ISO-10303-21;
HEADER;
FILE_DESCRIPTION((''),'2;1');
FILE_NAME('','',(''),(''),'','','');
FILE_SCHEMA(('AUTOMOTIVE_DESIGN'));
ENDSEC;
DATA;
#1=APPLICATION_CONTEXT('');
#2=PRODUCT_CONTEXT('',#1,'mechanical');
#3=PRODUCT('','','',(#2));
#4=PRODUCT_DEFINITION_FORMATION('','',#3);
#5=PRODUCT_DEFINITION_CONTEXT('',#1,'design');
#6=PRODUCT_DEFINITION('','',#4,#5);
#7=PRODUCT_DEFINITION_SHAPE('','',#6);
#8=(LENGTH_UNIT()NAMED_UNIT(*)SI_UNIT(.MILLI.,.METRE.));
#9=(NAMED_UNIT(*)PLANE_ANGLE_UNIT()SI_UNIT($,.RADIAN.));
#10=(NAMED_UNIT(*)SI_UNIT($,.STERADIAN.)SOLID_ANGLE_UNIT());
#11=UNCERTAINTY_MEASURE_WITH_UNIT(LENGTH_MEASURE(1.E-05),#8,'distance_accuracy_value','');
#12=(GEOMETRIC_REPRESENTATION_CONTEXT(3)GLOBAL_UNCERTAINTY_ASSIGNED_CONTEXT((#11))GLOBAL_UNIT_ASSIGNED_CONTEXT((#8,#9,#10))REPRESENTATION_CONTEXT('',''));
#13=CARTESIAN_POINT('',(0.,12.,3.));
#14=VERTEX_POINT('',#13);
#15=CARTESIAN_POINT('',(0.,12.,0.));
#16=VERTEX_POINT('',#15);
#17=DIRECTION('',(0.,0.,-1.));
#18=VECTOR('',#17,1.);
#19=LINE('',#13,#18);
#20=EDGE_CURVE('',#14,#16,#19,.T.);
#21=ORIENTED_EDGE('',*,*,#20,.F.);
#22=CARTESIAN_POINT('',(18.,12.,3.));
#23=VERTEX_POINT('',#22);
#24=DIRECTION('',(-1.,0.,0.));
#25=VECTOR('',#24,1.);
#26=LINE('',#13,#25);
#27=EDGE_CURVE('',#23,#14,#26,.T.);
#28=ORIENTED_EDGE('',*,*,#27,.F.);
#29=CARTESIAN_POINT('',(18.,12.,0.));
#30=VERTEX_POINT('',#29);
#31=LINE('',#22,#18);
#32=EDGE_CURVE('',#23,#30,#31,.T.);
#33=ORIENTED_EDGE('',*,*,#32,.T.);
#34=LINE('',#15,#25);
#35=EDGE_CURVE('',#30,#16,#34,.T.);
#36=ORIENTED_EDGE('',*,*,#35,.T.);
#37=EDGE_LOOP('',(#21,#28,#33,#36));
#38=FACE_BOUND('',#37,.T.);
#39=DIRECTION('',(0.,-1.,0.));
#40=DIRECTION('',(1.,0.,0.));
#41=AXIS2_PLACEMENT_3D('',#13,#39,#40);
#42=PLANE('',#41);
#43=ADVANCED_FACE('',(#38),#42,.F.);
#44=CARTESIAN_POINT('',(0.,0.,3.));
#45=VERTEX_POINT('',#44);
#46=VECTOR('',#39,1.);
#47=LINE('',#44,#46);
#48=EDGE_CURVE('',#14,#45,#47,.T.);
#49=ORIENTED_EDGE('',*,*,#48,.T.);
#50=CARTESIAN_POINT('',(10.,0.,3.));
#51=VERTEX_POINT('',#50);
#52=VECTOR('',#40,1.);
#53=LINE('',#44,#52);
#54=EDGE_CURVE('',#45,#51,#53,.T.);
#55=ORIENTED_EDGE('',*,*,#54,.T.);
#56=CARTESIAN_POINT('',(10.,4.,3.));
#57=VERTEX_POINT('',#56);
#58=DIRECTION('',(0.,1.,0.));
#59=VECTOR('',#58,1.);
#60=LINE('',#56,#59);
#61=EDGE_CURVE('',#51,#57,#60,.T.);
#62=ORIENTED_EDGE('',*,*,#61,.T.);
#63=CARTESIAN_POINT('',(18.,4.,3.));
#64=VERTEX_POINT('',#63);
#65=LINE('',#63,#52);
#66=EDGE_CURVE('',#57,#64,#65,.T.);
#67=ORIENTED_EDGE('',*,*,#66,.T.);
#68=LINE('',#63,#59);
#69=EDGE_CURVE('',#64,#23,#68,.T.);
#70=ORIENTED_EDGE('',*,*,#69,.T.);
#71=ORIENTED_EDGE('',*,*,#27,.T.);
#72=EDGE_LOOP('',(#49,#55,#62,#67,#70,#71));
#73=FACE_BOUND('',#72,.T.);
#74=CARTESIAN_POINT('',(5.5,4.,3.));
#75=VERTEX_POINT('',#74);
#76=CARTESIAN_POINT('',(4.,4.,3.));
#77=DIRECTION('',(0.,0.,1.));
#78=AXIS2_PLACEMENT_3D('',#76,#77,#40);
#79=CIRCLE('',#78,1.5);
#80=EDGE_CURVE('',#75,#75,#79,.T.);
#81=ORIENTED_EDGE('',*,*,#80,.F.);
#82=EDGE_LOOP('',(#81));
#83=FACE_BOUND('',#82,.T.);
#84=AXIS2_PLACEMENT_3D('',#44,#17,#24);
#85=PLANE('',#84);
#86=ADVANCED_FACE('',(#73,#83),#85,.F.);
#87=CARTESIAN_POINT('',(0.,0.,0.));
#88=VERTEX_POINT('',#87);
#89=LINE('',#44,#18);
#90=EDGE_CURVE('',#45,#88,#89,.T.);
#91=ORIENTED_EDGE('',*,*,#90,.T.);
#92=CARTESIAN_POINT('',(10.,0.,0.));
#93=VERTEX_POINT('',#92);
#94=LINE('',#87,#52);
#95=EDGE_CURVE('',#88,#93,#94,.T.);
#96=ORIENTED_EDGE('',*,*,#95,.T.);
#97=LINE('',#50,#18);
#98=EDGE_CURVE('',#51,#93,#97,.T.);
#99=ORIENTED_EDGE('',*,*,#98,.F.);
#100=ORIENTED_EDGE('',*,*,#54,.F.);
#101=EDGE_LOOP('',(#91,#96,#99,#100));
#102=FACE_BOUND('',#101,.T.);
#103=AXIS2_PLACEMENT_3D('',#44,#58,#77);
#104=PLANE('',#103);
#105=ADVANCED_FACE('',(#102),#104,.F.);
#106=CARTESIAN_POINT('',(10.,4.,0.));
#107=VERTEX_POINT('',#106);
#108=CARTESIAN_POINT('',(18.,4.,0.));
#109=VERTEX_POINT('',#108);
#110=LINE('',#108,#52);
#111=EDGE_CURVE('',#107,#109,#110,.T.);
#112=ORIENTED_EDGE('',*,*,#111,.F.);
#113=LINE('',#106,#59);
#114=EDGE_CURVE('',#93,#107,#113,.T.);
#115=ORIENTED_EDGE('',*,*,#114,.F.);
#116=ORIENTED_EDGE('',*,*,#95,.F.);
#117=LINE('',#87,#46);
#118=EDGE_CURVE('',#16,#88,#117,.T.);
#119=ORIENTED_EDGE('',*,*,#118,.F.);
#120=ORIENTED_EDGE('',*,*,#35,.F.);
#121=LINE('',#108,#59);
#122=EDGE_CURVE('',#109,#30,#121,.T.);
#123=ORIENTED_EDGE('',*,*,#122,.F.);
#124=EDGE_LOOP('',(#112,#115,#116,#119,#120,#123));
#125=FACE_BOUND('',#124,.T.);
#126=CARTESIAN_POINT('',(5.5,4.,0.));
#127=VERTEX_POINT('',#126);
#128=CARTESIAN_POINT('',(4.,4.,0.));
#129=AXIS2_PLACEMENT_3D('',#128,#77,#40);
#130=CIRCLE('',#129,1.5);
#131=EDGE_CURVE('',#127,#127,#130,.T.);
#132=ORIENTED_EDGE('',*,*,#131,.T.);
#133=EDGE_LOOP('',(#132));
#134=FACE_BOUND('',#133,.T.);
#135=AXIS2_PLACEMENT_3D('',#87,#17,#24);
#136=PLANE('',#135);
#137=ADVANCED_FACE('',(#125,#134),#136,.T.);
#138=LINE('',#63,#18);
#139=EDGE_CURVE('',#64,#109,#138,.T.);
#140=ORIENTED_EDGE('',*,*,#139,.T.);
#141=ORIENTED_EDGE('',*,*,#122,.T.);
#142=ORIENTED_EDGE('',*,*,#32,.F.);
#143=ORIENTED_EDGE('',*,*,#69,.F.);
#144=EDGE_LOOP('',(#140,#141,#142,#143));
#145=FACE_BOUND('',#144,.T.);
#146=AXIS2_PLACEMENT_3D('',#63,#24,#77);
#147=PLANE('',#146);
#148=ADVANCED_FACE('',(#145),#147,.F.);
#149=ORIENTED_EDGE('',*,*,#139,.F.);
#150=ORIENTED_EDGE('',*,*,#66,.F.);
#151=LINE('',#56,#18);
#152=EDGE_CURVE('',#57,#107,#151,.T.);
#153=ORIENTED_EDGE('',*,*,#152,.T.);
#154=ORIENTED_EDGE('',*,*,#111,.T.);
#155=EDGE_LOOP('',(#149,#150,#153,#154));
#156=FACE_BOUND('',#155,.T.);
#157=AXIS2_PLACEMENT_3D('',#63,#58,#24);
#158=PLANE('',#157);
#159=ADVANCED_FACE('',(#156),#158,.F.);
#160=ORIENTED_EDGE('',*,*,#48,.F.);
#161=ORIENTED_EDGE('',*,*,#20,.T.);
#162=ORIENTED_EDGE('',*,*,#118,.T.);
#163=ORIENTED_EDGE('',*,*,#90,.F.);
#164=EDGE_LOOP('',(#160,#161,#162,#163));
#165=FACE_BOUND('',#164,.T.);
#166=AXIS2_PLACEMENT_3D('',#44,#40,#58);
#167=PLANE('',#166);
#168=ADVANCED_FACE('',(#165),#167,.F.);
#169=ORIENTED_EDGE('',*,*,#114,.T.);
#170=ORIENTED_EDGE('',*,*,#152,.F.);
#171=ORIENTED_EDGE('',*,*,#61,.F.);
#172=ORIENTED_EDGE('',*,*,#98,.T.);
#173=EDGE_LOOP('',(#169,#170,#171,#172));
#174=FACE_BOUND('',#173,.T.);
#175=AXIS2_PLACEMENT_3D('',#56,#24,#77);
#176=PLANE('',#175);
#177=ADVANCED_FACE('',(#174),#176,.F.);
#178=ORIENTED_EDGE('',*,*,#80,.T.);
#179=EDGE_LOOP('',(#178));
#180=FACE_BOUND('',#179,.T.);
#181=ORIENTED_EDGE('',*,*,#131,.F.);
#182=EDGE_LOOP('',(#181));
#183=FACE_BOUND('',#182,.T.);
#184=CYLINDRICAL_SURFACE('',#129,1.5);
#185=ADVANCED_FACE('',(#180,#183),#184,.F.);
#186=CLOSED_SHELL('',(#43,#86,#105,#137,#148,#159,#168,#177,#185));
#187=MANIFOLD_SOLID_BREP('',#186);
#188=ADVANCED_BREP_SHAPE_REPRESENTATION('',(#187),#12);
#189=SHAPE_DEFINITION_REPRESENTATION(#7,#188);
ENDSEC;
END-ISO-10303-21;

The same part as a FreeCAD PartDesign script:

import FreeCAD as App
import Part
import Sketcher
from FreeCAD import Vector
Q = App.Units.Quantity


def add_polygon(sketch, points):
    """Adds a closed chain of lines whose ends are joined by coincident constraints."""
    first, n = sketch.GeometryCount, len(points)
    for a, b in zip(points, points[1:] + points[:1]):
        sketch.addGeometry(Part.LineSegment(App.Vector(*a, 0), App.Vector(*b, 0)), False)
    for i in range(n):
        sketch.addConstraint(Sketcher.Constraint("Coincident", first + i, 2, first + (i + 1) % n, 1))

doc = App.newDocument("Part")
body = doc.addObject("PartDesign::Body", "Body")

# Sketch on XY plane
sketch1 = doc.addObject("Sketcher::SketchObject", "Sketch")
body.addObject(sketch1)
sketch1.AttachmentSupport = (doc.XY_Plane, [""])
sketch1.MapMode = "FlatFace"
add_polygon(sketch1, [(0, 0), (10, 0), (10, 4), (18, 4), (18, 12), (0, 12)])  # lines 0-5
sketch1.addConstraint(Sketcher.Constraint("Horizontal", 0))
sketch1.addConstraint(Sketcher.Constraint("Vertical", 1))
sketch1.addConstraint(Sketcher.Constraint("Horizontal", 2))
sketch1.addConstraint(Sketcher.Constraint("Vertical", 3))
sketch1.addConstraint(Sketcher.Constraint("Horizontal", 4))
sketch1.addConstraint(Sketcher.Constraint("Vertical", 5))
sketch1.addConstraint(Sketcher.Constraint("Coincident", 5, 2, -1, 1))
sketch1.addConstraint(Sketcher.Constraint("Equal", 2, 3))
sketch1.addConstraint(Sketcher.Constraint("DistanceX", 0, 1, 0, 2, Q("10 mm")))
sketch1.addConstraint(Sketcher.Constraint("DistanceX", 2, 1, 2, 2, Q("8 mm")))
sketch1.addConstraint(Sketcher.Constraint("DistanceY", 1, 1, 1, 2, Q("4 mm")))
pad1 = doc.addObject("PartDesign::Pad", "Pad")
body.addObject(pad1)
pad1.Profile = sketch1
pad1.Length = 3

# Sketch on XY plane
sketch2 = doc.addObject("Sketcher::SketchObject", "Sketch001")
body.addObject(sketch2)
sketch2.AttachmentSupport = (doc.XY_Plane, [""])
sketch2.MapMode = "FlatFace"
sketch2.AttachmentOffset = App.Placement(Vector(0, 0, 3), App.Rotation())
sketch2.addGeometry(Part.Circle(Vector(4, 4, 0), Vector(0, 0, 1), 1.5), False)
sketch2.addConstraint(Sketcher.Constraint("Diameter", 0, Q("3 mm")))
sketch2.addConstraint(Sketcher.Constraint("DistanceX", -1, 1, 0, 3, Q("4 mm")))
sketch2.addConstraint(Sketcher.Constraint("DistanceY", -1, 1, 0, 3, Q("4 mm")))
pocket1 = doc.addObject("PartDesign::Pocket", "Pocket")
body.addObject(pocket1)
pocket1.Profile = sketch2
pocket1.Type = "ThroughAll"

doc.recompute()
